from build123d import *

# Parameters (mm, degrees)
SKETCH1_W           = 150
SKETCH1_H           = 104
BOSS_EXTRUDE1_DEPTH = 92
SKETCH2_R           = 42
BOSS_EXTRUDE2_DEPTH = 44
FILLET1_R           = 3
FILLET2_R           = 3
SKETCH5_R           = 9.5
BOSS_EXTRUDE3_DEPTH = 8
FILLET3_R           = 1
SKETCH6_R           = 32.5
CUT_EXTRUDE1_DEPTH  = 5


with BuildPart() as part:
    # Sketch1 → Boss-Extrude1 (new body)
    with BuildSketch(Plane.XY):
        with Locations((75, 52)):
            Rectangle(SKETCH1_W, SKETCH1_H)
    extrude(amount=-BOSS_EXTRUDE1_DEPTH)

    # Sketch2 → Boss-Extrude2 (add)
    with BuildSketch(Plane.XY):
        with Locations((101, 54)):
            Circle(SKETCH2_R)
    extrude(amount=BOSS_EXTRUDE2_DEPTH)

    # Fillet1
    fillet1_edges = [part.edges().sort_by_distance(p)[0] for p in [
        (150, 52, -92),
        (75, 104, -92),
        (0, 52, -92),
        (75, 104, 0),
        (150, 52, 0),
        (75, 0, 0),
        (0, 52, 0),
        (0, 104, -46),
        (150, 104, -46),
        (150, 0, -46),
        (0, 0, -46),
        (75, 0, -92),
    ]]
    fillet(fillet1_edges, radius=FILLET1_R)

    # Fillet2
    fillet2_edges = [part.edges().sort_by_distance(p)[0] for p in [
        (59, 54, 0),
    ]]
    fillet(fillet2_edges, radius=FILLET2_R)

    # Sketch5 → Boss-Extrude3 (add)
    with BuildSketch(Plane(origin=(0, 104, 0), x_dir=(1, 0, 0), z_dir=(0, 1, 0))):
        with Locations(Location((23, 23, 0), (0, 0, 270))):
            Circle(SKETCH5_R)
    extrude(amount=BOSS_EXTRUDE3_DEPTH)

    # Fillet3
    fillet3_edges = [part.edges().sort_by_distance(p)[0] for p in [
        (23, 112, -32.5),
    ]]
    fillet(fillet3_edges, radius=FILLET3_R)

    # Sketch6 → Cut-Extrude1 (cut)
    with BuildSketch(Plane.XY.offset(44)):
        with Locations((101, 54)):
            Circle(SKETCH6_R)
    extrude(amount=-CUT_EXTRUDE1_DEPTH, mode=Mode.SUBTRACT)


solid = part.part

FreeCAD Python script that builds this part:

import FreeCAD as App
import Part
import Sketcher
Q = App.Units.Quantity


def edges_at(feature, points):
    """Names of the edges that pass closest to the given points."""
    edges = feature.Shape.Edges
    near = lambda p: min(range(len(edges)), key=lambda i: edges[i].distToShape(Part.Vertex(*p))[0])
    return sorted({f"Edge{near(p) + 1}" for p in points})

doc = App.newDocument("Part")
params = doc.addObject("Spreadsheet::Sheet", "Params")
for row, (alias, value) in enumerate([
    ("sketch1_width", "150 mm"),
    ("sketch1_height", "104 mm"),
    ("pad1_length", "92 mm"),
    ("sketch2_diameter", "84 mm"),
    ("pad2_length", "44 mm"),
    ("fillet_radius", "3 mm"),
    ("fillet2_radius", "3 mm"),
    ("sketch3_diameter", "19 mm"),
    ("pad3_length", "8 mm"),
    ("fillet3_radius", "1 mm"),
    ("sketch4_diameter", "65 mm"),
    ("pocket1_length", "5 mm"),
], start=1):
    params.set(f"A{row}", alias)
    params.set(f"B{row}", "=" + value)
    params.setAlias(f"B{row}", alias)

body = doc.addObject("PartDesign::Body", "Body")

sketch1 = body.newObject("Sketcher::SketchObject", "Sketch")
sketch1.AttachmentSupport = (doc.getObject("XY_Plane"), [""])
sketch1.MapMode = "FlatFace"
sketch1.addGeometry(Part.LineSegment(App.Vector(0, 104, 0), App.Vector(0, 0, 0)), False)
sketch1.addGeometry(Part.LineSegment(App.Vector(0, 0, 0), App.Vector(150, 0, 0)), False)
sketch1.addGeometry(Part.LineSegment(App.Vector(150, 0, 0), App.Vector(150, 104, 0)), False)
sketch1.addGeometry(Part.LineSegment(App.Vector(150, 104, 0), App.Vector(0, 104, 0)), False)
sketch1.addConstraint(Sketcher.Constraint("Coincident", 0, 2, 1, 1))
sketch1.addConstraint(Sketcher.Constraint("Coincident", 1, 2, 2, 1))
sketch1.addConstraint(Sketcher.Constraint("Coincident", 2, 2, 3, 1))
sketch1.addConstraint(Sketcher.Constraint("Coincident", 3, 2, 0, 1))
sketch1.addConstraint(Sketcher.Constraint("Vertical", 0))
sketch1.addConstraint(Sketcher.Constraint("Horizontal", 1))
sketch1.addConstraint(Sketcher.Constraint("Vertical", 2))
sketch1.addConstraint(Sketcher.Constraint("Horizontal", 3))
sketch1.addConstraint(Sketcher.Constraint("Coincident", 0, 2, -1, 1))
sketch1.addConstraint(Sketcher.Constraint("DistanceX", 1, 1, 1, 2, Q("150 mm")))
sketch1.addConstraint(Sketcher.Constraint("DistanceY", 0, 2, 0, 1, Q("104 mm")))
sketch1.setExpression("Constraints[9]", "Params.sketch1_width")
sketch1.setExpression("Constraints[10]", "Params.sketch1_height")
pad1 = body.newObject("PartDesign::Pad", "Pad")
pad1.Profile = sketch1
pad1.setExpression("Length", "Params.pad1_length")
pad1.Reversed = True

sketch2 = body.newObject("Sketcher::SketchObject", "Sketch001")
sketch2.AttachmentSupport = (doc.getObject("XY_Plane"), [""])
sketch2.MapMode = "FlatFace"
sketch2.addGeometry(Part.Circle(App.Vector(101, 54, 0), App.Vector(0, 0, 1), 42), False)
sketch2.addConstraint(Sketcher.Constraint("Diameter", 0, Q("84 mm")))
sketch2.addConstraint(Sketcher.Constraint("DistanceX", -1, 1, 0, 3, Q("101 mm")))
sketch2.addConstraint(Sketcher.Constraint("DistanceY", -1, 1, 0, 3, Q("54 mm")))
sketch2.setExpression("Constraints[0]", "Params.sketch2_diameter")
pad2 = body.newObject("PartDesign::Pad", "Pad001")
pad2.Profile = sketch2
pad2.setExpression("Length", "Params.pad2_length")
doc.recompute()

fillet = body.newObject("PartDesign::Fillet", "Fillet")
fillet.Base = (pad2, edges_at(pad2, [
    (150, 52, -92),
    (75, 104, -92),
    (0, 52, -92),
    (75, 104, 0),
    (150, 52, 0),
    (75, 0, 0),
    (0, 52, 0),
    (0, 104, -46),
    (150, 104, -46),
    (150, 0, -46),
    (0, 0, -46),
    (75, 0, -92),
]))
fillet.setExpression("Radius", "Params.fillet_radius")
doc.recompute()

fillet2 = body.newObject("PartDesign::Fillet", "Fillet001")
fillet2.Base = (fillet, edges_at(fillet, [(59, 54, 0)]))
fillet2.setExpression("Radius", "Params.fillet2_radius")

sketch3 = body.newObject("Sketcher::SketchObject", "Sketch002")
sketch3.AttachmentSupport = (doc.getObject("XZ_Plane"), [""])
sketch3.MapMode = "FlatFace"
sketch3.AttachmentOffset = App.Placement(App.Vector(0, 0, -104), App.Rotation())
sketch3.addGeometry(Part.Circle(App.Vector(23, -23, 0), App.Vector(0, 0, 1), 10), False)
sketch3.addConstraint(Sketcher.Constraint("Diameter", 0, Q("19 mm")))
sketch3.addConstraint(Sketcher.Constraint("DistanceX", -1, 1, 0, 3, Q("23 mm")))
sketch3.addConstraint(Sketcher.Constraint("DistanceY", 0, 3, -1, 1, Q("23 mm")))
sketch3.setExpression("Constraints[0]", "Params.sketch3_diameter")
pad3 = body.newObject("PartDesign::Pad", "Pad002")
pad3.Profile = sketch3
pad3.setExpression("Length", "Params.pad3_length")
pad3.Reversed = True
doc.recompute()

fillet3 = body.newObject("PartDesign::Fillet", "Fillet002")
fillet3.Base = (pad3, edges_at(pad3, [(23, 112, -32.5)]))
fillet3.setExpression("Radius", "Params.fillet3_radius")

sketch4 = body.newObject("Sketcher::SketchObject", "Sketch003")
sketch4.AttachmentSupport = (doc.getObject("XY_Plane"), [""])
sketch4.MapMode = "FlatFace"
sketch4.AttachmentOffset = App.Placement(App.Vector(0, 0, 44), App.Rotation())
sketch4.addGeometry(Part.Circle(App.Vector(101, 54, 0), App.Vector(0, 0, 1), 32), False)
sketch4.addConstraint(Sketcher.Constraint("Diameter", 0, Q("65 mm")))
sketch4.addConstraint(Sketcher.Constraint("DistanceX", -1, 1, 0, 3, Q("101 mm")))
sketch4.addConstraint(Sketcher.Constraint("DistanceY", -1, 1, 0, 3, Q("54 mm")))
sketch4.setExpression("Constraints[0]", "Params.sketch4_diameter")
pocket1 = body.newObject("PartDesign::Pocket", "Pocket")
pocket1.Profile = sketch4
pocket1.setExpression("Length", "Params.pocket1_length")

doc.recompute()
